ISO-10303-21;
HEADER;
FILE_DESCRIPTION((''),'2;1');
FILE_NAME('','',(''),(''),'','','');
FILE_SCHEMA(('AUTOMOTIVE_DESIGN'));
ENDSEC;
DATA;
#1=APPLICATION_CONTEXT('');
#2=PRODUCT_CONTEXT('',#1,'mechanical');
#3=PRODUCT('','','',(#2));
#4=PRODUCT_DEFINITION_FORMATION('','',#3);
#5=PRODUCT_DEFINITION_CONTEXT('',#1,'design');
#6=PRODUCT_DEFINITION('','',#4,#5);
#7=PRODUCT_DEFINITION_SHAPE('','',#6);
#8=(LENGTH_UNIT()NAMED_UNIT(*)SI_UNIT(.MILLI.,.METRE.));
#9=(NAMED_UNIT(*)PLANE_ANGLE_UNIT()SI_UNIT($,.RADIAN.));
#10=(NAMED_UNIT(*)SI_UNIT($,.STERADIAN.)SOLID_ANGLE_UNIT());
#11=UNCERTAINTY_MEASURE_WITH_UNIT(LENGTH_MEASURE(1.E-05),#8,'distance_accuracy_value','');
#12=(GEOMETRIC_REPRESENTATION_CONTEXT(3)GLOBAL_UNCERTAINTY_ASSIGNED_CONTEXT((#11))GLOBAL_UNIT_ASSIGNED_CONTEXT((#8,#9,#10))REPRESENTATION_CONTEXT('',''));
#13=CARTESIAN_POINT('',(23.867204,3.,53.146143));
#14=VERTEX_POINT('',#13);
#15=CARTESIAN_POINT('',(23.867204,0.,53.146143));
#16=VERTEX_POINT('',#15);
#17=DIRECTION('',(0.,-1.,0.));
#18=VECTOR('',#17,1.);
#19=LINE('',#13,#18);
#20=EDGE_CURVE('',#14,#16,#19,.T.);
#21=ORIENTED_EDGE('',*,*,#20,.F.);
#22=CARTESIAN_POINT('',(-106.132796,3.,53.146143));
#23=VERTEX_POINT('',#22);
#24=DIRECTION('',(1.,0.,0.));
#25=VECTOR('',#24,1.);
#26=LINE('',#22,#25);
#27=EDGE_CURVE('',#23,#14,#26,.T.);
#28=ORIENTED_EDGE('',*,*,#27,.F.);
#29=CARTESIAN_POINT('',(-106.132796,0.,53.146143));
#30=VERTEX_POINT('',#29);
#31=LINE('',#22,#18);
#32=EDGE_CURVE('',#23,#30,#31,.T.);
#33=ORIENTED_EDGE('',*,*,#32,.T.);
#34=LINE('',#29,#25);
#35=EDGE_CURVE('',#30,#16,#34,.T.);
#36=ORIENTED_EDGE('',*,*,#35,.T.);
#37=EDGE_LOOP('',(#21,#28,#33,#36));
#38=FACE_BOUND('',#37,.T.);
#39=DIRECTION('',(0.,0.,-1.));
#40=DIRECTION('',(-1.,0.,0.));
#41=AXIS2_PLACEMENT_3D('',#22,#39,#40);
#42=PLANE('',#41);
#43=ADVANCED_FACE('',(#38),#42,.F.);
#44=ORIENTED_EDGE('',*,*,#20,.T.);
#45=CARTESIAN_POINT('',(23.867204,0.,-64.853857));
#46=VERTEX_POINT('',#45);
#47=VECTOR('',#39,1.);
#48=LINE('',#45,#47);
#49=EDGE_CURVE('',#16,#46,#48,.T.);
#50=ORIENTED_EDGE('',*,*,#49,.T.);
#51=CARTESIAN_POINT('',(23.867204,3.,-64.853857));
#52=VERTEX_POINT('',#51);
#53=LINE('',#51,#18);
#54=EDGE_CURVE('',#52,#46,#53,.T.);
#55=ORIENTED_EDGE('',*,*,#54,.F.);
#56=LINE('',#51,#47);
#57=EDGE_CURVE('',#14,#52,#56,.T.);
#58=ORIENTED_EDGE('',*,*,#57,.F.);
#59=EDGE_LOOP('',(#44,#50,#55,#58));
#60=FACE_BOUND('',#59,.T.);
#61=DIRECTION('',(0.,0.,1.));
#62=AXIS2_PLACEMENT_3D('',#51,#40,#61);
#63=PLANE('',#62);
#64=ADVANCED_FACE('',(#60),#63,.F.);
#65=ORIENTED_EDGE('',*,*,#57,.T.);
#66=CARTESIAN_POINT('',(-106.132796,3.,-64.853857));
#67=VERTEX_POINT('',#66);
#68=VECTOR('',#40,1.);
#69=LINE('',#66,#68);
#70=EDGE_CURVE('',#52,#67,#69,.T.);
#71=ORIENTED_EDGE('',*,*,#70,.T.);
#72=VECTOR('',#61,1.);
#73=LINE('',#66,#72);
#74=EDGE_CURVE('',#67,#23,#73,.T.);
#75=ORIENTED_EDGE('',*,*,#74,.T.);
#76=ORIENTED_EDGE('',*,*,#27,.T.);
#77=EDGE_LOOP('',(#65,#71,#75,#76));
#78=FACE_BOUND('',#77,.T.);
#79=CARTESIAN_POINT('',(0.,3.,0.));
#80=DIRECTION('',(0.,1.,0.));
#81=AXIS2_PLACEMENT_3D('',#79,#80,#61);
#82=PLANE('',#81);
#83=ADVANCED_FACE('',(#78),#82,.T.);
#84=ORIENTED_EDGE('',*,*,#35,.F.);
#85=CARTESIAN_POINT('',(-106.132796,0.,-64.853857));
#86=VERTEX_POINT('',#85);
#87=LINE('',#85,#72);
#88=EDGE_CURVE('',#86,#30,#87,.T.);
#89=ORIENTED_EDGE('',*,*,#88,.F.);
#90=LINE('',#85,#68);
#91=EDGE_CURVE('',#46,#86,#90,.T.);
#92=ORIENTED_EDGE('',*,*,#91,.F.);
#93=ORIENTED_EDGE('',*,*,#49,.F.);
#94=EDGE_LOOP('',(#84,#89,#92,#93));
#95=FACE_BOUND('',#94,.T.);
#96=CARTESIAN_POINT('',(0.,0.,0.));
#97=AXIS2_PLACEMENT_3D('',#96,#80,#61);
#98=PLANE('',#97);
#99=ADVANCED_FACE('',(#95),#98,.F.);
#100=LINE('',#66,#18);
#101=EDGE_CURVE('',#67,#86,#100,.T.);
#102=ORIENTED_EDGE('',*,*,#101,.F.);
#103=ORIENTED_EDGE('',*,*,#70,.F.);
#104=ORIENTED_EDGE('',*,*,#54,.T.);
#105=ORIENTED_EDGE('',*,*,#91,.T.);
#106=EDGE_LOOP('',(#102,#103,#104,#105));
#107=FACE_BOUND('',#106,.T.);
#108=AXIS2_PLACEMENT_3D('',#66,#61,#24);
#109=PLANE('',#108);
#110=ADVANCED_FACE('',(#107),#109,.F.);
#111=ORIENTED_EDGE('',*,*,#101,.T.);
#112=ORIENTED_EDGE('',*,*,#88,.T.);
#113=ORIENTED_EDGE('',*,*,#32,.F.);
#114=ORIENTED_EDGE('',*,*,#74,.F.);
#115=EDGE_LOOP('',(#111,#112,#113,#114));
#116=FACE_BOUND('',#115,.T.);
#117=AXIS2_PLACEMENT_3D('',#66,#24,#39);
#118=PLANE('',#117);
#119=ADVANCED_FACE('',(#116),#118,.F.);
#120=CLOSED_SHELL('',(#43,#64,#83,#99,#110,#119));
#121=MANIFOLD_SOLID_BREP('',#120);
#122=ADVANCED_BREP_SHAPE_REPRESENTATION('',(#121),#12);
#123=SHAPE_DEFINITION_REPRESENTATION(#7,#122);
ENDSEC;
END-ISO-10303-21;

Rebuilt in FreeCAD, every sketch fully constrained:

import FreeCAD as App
import Part
import Sketcher

V = App.Vector
Q = App.Units.Quantity

doc = App.newDocument("Part")
body = doc.addObject("PartDesign::Body", "Body")

# Sketch on XZ plane
sketch1 = body.newObject("Sketcher::SketchObject", "Sketch")
sketch1.AttachmentSupport = (doc.getObject("XZ_Plane"), [""])
sketch1.MapMode = "FlatFace"
sketch1.addGeometry([
    Part.LineSegment(V(-106, -65, 0), V(-106, 53, 0)),
    Part.LineSegment(V(-106, 53, 0), V(24, 53, 0)),
    Part.LineSegment(V(24, 53, 0), V(24, -65, 0)),
    Part.LineSegment(V(24, -65, 0), V(-106, -65, 0)),
], False)
sketch1.addConstraint([
    Sketcher.Constraint("Coincident", 0, 2, 1, 1),
    Sketcher.Constraint("Coincident", 1, 2, 2, 1),
    Sketcher.Constraint("Coincident", 2, 2, 3, 1),
    Sketcher.Constraint("Coincident", 3, 2, 0, 1),
    Sketcher.Constraint("Vertical", 0),
    Sketcher.Constraint("Horizontal", 1),
    Sketcher.Constraint("Vertical", 2),
    Sketcher.Constraint("Horizontal", 3),
    Sketcher.Constraint("DistanceX", 1, 1, 1, 2, Q("130 mm")),
    Sketcher.Constraint("DistanceY", 0, 1, 0, 2, Q("118 mm")),
    Sketcher.Constraint("DistanceX", 0, 2, -1, 1, Q("106.132796 mm")),
    Sketcher.Constraint("DistanceY", -1, 1, 0, 2, Q("53.146143 mm")),
])
pad1 = body.newObject("PartDesign::Pad", "Pad")
pad1.Profile = sketch1
pad1.Length = 3
pad1.Reversed = True

doc.recompute()
